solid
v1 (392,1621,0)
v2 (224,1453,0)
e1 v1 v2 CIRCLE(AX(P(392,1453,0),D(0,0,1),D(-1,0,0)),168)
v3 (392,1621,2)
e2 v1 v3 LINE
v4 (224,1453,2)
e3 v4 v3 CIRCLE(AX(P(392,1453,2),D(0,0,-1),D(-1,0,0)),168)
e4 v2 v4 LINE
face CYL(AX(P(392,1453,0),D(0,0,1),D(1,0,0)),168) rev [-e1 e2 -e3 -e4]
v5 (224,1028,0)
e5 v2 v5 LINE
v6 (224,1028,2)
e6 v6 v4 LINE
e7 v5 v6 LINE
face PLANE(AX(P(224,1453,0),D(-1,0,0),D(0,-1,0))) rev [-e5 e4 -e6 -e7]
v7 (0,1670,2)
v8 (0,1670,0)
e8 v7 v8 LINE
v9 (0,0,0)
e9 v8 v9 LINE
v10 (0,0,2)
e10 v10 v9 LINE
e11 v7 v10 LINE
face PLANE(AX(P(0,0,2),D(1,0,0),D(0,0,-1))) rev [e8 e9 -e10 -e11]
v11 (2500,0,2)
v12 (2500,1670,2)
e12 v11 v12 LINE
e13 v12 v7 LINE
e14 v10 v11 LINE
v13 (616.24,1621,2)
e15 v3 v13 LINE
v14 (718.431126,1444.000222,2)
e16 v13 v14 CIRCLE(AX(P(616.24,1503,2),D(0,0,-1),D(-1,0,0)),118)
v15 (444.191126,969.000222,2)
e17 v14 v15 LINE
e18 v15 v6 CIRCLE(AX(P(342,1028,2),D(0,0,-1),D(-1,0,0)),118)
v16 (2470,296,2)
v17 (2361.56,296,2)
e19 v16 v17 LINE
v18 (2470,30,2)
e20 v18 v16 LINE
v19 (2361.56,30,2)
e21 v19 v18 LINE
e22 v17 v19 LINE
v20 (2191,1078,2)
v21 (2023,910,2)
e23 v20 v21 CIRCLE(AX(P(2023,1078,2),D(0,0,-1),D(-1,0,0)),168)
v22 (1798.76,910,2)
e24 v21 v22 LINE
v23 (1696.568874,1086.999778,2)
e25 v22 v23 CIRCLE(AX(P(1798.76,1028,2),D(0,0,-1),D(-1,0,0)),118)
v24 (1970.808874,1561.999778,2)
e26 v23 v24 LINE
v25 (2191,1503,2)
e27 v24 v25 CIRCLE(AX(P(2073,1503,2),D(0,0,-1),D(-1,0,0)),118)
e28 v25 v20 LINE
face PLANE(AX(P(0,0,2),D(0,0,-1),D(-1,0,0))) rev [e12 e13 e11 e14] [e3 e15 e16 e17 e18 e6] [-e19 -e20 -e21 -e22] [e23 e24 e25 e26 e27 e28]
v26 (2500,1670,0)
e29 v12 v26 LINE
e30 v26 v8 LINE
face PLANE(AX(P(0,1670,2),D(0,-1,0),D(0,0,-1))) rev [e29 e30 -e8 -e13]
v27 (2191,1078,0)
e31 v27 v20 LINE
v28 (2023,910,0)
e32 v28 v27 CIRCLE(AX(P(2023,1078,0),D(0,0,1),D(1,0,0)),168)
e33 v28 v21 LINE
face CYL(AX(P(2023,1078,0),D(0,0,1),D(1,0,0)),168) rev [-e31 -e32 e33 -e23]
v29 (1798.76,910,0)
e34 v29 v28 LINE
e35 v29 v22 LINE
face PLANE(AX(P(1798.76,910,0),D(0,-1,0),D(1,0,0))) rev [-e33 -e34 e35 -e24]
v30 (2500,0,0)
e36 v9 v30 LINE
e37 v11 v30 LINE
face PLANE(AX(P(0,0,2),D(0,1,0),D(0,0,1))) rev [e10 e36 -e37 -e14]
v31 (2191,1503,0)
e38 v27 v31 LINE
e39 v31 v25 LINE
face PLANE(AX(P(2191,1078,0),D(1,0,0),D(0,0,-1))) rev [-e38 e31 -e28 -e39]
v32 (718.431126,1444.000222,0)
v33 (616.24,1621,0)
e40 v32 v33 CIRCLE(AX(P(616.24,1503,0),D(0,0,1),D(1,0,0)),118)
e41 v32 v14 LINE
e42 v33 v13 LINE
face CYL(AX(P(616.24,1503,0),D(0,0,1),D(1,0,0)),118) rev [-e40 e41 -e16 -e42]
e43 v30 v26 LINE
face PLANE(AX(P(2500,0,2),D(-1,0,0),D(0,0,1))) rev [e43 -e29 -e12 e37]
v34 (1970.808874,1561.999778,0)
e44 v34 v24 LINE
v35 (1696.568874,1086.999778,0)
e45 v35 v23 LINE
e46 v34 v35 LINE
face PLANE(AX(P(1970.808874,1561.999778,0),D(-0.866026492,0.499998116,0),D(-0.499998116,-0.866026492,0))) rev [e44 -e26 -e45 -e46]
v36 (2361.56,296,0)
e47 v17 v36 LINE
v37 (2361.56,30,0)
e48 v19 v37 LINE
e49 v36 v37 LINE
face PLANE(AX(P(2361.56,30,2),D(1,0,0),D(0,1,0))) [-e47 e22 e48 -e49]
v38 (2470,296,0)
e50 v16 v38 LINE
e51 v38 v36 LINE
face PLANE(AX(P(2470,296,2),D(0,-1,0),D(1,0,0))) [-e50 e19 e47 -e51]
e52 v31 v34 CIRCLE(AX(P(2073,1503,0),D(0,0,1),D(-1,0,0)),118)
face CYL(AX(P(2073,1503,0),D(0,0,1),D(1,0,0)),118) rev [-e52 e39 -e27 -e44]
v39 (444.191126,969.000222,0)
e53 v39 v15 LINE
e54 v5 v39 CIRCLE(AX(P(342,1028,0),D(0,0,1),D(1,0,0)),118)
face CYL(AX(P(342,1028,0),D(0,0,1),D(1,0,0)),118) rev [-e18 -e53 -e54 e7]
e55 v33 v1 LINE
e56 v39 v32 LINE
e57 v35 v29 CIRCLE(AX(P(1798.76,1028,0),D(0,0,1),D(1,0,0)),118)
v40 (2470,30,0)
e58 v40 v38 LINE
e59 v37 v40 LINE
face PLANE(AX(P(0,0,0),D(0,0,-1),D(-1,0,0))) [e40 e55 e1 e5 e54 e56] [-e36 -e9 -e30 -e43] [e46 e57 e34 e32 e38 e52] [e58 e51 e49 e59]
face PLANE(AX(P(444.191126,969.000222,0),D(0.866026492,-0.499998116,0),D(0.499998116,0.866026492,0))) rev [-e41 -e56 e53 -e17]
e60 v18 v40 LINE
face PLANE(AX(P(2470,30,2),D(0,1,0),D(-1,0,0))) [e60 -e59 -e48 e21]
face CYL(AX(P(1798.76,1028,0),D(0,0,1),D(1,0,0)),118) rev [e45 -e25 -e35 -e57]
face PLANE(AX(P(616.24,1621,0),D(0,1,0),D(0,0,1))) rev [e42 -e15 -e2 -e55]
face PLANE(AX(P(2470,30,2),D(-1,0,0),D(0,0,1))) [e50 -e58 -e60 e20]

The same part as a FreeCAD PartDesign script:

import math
import FreeCAD as App
import Part
import Sketcher
Q = App.Units.Quantity

doc = App.newDocument("Part")
body = doc.addObject("PartDesign::Body", "Body")

# Sketch on XY plane
sketch1 = body.newObject("Sketcher::SketchObject", "Sketch")
sketch1.AttachmentSupport = (doc.getObject("XY_Plane"), [""])
sketch1.MapMode = "FlatFace"
sketch1.addGeometry([
    Part.LineSegment(App.Vector(0, 1670, 0), App.Vector(0, 0, 0)),  # 0
    Part.LineSegment(App.Vector(0, 0, 0), App.Vector(2500, 0, 0)),  # 1
    Part.LineSegment(App.Vector(2500, 0, 0), App.Vector(2500, 1670, 0)),  # 2
    Part.LineSegment(App.Vector(2500, 1670, 0), App.Vector(0, 1670, 0)),  # 3
    Part.LineSegment(App.Vector(2470, 30, 0), App.Vector(2362, 30, 0)),  # 4
    Part.LineSegment(App.Vector(2362, 30, 0), App.Vector(2362, 296, 0)),  # 5
    Part.LineSegment(App.Vector(2362, 296, 0), App.Vector(2470, 296, 0)),  # 6
    Part.LineSegment(App.Vector(2470, 296, 0), App.Vector(2470, 30, 0)),  # 7
], False)
sketch1.addConstraint([
    Sketcher.Constraint("Coincident", 0, 2, 1, 1),
    Sketcher.Constraint("Coincident", 1, 2, 2, 1),
    Sketcher.Constraint("Coincident", 2, 2, 3, 1),
    Sketcher.Constraint("Coincident", 3, 2, 0, 1),
    Sketcher.Constraint("Coincident", 4, 2, 5, 1),
    Sketcher.Constraint("Coincident", 5, 2, 6, 1),
    Sketcher.Constraint("Coincident", 6, 2, 7, 1),
    Sketcher.Constraint("Coincident", 7, 2, 4, 1),
    Sketcher.Constraint("Vertical", 0),
    Sketcher.Constraint("Horizontal", 1),
    Sketcher.Constraint("Vertical", 2),
    Sketcher.Constraint("Horizontal", 3),
    Sketcher.Constraint("Horizontal", 4),
    Sketcher.Constraint("Vertical", 5),
    Sketcher.Constraint("Horizontal", 6),
    Sketcher.Constraint("Vertical", 7),
    Sketcher.Constraint("Coincident", 0, 2, -1, 1),
    Sketcher.Constraint("DistanceX", 1, 1, 1, 2, Q("2500 mm")),
    Sketcher.Constraint("DistanceY", 0, 2, 0, 1, Q("1670 mm")),
    Sketcher.Constraint("DistanceY", 5, 1, 5, 2, Q("266 mm")),
    Sketcher.Constraint("DistanceY", -1, 1, 4, 2, Q("30 mm")),
    Sketcher.Constraint("DistanceX", -1, 1, 6, 2, Q("2470 mm")),
    Sketcher.Constraint("DistanceX", 4, 2, 4, 1, Q("108.44 mm")),
])
pad1 = body.newObject("PartDesign::Pad", "Pad")
pad1.Profile = sketch1
pad1.Length = 2

# Sketch on XY plane
sketch2 = body.newObject("Sketcher::SketchObject", "Sketch001")
sketch2.AttachmentSupport = (doc.getObject("XY_Plane"), [""])
sketch2.MapMode = "FlatFace"
sketch2.AttachmentOffset = App.Placement(App.Vector(0, 0, 33), App.Rotation())
sketch2.addGeometry([
    Part.LineSegment(App.Vector(1971, 1562, 0), App.Vector(1697, 1087, 0)),  # 0
    Part.ArcOfCircle(Part.Circle(App.Vector(1799, 1028, 0), App.Vector(0, 0, 1), 118), math.radians(150), math.radians(270)),  # 1
    Part.LineSegment(App.Vector(1799, 910, 0), App.Vector(2023, 910, 0)),  # 2
    Part.ArcOfCircle(Part.Circle(App.Vector(2023, 1078, 0), App.Vector(0, 0, 1), 168), math.radians(-90), math.radians(0)),  # 3
    Part.LineSegment(App.Vector(2191, 1078, 0), App.Vector(2191, 1503, 0)),  # 4
    Part.ArcOfCircle(Part.Circle(App.Vector(2073, 1503, 0), App.Vector(0, 0, 1), 118), math.radians(0), math.radians(150)),  # 5
    Part.LineSegment(App.Vector(224, 1453, 0), App.Vector(224, 1028, 0)),  # 6
    Part.ArcOfCircle(Part.Circle(App.Vector(342, 1028, 0), App.Vector(0, 0, 1), 118), math.radians(180), math.radians(330)),  # 7
    Part.LineSegment(App.Vector(444, 969, 0), App.Vector(718, 1444, 0)),  # 8
    Part.ArcOfCircle(Part.Circle(App.Vector(616, 1503, 0), App.Vector(0, 0, 1), 118), math.radians(-30), math.radians(90)),  # 9
    Part.LineSegment(App.Vector(616, 1621, 0), App.Vector(392, 1621, 0)),  # 10
    Part.ArcOfCircle(Part.Circle(App.Vector(392, 1453, 0), App.Vector(0, 0, 1), 168), math.radians(90), math.radians(180)),  # 11
], False)
sketch2.addConstraint([
    Sketcher.Constraint("Tangent", 0, 2, 1, 1),
    Sketcher.Constraint("Tangent", 1, 2, 2, 1),
    Sketcher.Constraint("Tangent", 2, 2, 3, 1),
    Sketcher.Constraint("Tangent", 3, 2, 4, 1),
    Sketcher.Constraint("Tangent", 4, 2, 5, 1),
    Sketcher.Constraint("Tangent", 5, 2, 0, 1),
    Sketcher.Constraint("Tangent", 6, 2, 7, 1),
    Sketcher.Constraint("Tangent", 7, 2, 8, 1),
    Sketcher.Constraint("Tangent", 8, 2, 9, 1),
    Sketcher.Constraint("Tangent", 9, 2, 10, 1),
    Sketcher.Constraint("Tangent", 10, 2, 11, 1),
    Sketcher.Constraint("Tangent", 11, 2, 6, 1),
    Sketcher.Constraint("Horizontal", 2),
    Sketcher.Constraint("Vertical", 4),
    Sketcher.Constraint("Vertical", 6),
    Sketcher.Constraint("Horizontal", 10),
    Sketcher.Constraint("Equal", 1, 5),
    Sketcher.Constraint("Equal", 5, 7),
    Sketcher.Constraint("Equal", 7, 9),
    Sketcher.Constraint("Equal", 3, 11),
    Sketcher.Constraint("Parallel", 0, 8),
    Sketcher.Constraint("Horizontal", 1, 3, 7, 3),
    Sketcher.Constraint("Horizontal", 5, 3, 9, 3),
    Sketcher.Constraint("Radius", 1, Q("118 mm")),
    Sketcher.Constraint("Radius", 3, Q("168 mm")),
    Sketcher.Constraint("DistanceY", 4, 1, 4, 2, Q("425 mm")),
    Sketcher.Constraint("DistanceY", -1, 1, 1, 3, Q("1028 mm")),
    Sketcher.Constraint("DistanceX", -1, 1, 3, 3, Q("2023 mm")),
    Sketcher.Constraint("DistanceX", -1, 1, 7, 3, Q("342 mm")),
    Sketcher.Constraint("DistanceX", 2, 1, 2, 2, Q("224.24 mm")),
])
pocket1 = body.newObject("PartDesign::Pocket", "Pocket")
pocket1.Profile = sketch2
pocket1.Type = "ThroughAll"

doc.recompute()
